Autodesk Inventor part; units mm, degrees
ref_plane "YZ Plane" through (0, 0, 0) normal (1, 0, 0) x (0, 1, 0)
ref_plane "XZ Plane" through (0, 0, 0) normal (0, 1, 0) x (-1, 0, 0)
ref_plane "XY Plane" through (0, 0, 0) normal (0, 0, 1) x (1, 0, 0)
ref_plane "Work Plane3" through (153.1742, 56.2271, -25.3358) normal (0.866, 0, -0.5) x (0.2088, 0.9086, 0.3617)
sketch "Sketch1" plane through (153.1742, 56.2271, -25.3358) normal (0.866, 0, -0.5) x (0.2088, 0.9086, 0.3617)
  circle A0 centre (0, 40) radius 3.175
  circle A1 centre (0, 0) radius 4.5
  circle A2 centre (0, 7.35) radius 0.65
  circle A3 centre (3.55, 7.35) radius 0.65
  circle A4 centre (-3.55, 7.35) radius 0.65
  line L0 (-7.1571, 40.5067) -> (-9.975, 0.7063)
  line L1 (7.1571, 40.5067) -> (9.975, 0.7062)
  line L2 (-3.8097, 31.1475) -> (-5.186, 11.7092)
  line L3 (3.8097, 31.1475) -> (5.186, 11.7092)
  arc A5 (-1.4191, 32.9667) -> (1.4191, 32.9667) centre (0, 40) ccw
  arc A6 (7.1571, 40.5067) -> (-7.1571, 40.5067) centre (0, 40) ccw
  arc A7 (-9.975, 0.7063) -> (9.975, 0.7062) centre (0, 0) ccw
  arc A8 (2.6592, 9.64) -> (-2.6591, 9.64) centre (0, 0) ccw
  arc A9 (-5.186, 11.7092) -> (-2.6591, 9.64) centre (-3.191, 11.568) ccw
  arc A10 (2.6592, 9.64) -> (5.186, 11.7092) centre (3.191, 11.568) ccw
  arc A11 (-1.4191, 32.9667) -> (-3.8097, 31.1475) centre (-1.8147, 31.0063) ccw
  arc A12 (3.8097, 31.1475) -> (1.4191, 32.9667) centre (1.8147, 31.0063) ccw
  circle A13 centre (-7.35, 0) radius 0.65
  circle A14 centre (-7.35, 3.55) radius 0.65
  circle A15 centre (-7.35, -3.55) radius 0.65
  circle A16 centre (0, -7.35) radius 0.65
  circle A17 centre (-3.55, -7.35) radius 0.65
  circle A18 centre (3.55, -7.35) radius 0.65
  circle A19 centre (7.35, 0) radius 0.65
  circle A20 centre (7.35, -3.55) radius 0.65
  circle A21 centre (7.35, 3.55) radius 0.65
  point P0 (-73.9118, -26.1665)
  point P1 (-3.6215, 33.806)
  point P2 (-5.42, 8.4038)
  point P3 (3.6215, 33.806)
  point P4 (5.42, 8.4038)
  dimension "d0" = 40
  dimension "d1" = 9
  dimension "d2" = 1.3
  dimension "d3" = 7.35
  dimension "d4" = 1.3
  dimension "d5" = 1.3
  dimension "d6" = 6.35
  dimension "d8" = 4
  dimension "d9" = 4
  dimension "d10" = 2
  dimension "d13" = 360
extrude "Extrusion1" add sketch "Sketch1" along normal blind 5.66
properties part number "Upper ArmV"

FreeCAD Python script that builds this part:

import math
import FreeCAD as App
import Part
import Sketcher

doc = App.newDocument("Part")
params = doc.addObject("Spreadsheet::Sheet", "Params")
for row, (alias, value) in enumerate([
    ("sketch1_diameter", "9 mm"),
    ("sketch1_radius", "2 mm"),
    ("sketch1_diameter2", "1.3 mm"),
    ("sketch1_diameter3", "6.35 mm"),
    ("sketch1_radius2", "10 mm"),
    ("pad1_length", "5.66 mm"),
], start=1):
    params.set(f"A{row}", alias)
    params.set(f"B{row}", "=" + value)
    params.setAlias(f"B{row}", alias)

body = doc.addObject("PartDesign::Body", "Body")

sketch1 = doc.addObject("Sketcher::SketchObject", "Sketch")
body.addObject(sketch1)
sketch1.Placement = App.Placement(App.Vector(153.1742, 56.2271, -25.3358), App.Rotation(App.Vector(0.208822961, 0.908609863, 0.361691978), App.Vector(0.454304932, -0.417645922, 0.786879224), App.Vector(0.866025404, 0, -0.5), "ZXY"))
sketch1.addGeometry([
    Part.ArcOfCircle(Part.Circle(App.Vector(0, 40, 0), App.Vector(0, 0, 1), 7.2), math.radians(4), math.radians(176)),
    Part.LineSegment(App.Vector(-7.2, 40.5, 0), App.Vector(-10, 0.7, 0)),
    Part.ArcOfCircle(Part.Circle(App.Vector(0, 0, 0), App.Vector(0, 0, 1), 10), math.radians(176), math.radians(364)),
    Part.LineSegment(App.Vector(10, 0.7, 0), App.Vector(7.2, 40.5, 0)),
    Part.Circle(App.Vector(-7.3, -3.5, 0), App.Vector(0, 0, 1), 0.7),
    Part.Circle(App.Vector(-7.3, 0, 0), App.Vector(0, 0, 1), 0.7),
    Part.Circle(App.Vector(-7.3, 3.5, 0), App.Vector(0, 0, 1), 0.7),
    Part.Circle(App.Vector(-3.5, -7.3, 0), App.Vector(0, 0, 1), 0.7),
    Part.Circle(App.Vector(-3.5, 7.3, 0), App.Vector(0, 0, 1), 0.7),
    Part.Circle(App.Vector(0, -7.3, 0), App.Vector(0, 0, 1), 0.7),
    Part.Circle(App.Vector(3.5, -7.3, 0), App.Vector(0, 0, 1), 0.7),
    Part.Circle(App.Vector(0, 0, 0), App.Vector(0, 0, 1), 4.5),
    Part.Circle(App.Vector(7.3, -3.5, 0), App.Vector(0, 0, 1), 0.7),
    Part.Circle(App.Vector(7.3, 0, 0), App.Vector(0, 0, 1), 0.7),
    Part.Circle(App.Vector(7.3, 3.5, 0), App.Vector(0, 0, 1), 0.7),
    Part.Circle(App.Vector(0, 7.3, 0), App.Vector(0, 0, 1), 0.7),
    Part.Circle(App.Vector(3.5, 7.3, 0), App.Vector(0, 0, 1), 0.7),
    Part.LineSegment(App.Vector(-5.2, 11.7, 0), App.Vector(-3.8, 31.1, 0)),
    Part.ArcOfCircle(Part.Circle(App.Vector(-1.8, 31, 0), App.Vector(0, 0, 1), 2), math.radians(79), math.radians(176)),
    Part.ArcOfCircle(Part.Circle(App.Vector(0, 40, 0), App.Vector(0, 0, 1), 7.2), math.radians(-101), math.radians(-79)),
    Part.ArcOfCircle(Part.Circle(App.Vector(1.8, 31, 0), App.Vector(0, 0, 1), 2), math.radians(4), math.radians(101)),
    Part.LineSegment(App.Vector(3.8, 31.1, 0), App.Vector(5.2, 11.7, 0)),
    Part.ArcOfCircle(Part.Circle(App.Vector(3.2, 11.6, 0), App.Vector(0, 0, 1), 2), math.radians(-105), math.radians(4)),
    Part.ArcOfCircle(Part.Circle(App.Vector(0, 0, 0), App.Vector(0, 0, 1), 10), math.radians(75), math.radians(105)),
    Part.ArcOfCircle(Part.Circle(App.Vector(-3.2, 11.6, 0), App.Vector(0, 0, 1), 2), math.radians(176), math.radians(285)),
    Part.Circle(App.Vector(0, 40, 0), App.Vector(0, 0, 1), 3.2),
], False)
sketch1.addConstraint([
    Sketcher.Constraint("Tangent", 0, 2, 1, 1),
    Sketcher.Constraint("Tangent", 1, 2, 2, 1),
    Sketcher.Constraint("Tangent", 2, 2, 3, 1),
    Sketcher.Constraint("Tangent", 3, 2, 0, 1),
    Sketcher.Constraint("Tangent", 17, 2, 18, 2),
    Sketcher.Constraint("Tangent", 18, 1, 19, 1),
    Sketcher.Constraint("Tangent", 19, 2, 20, 2),
    Sketcher.Constraint("Tangent", 20, 1, 21, 1),
    Sketcher.Constraint("Tangent", 21, 2, 22, 2),
    Sketcher.Constraint("Tangent", 22, 1, 23, 1),
    Sketcher.Constraint("Tangent", 23, 2, 24, 2),
    Sketcher.Constraint("Tangent", 24, 1, 17, 1),
    Sketcher.Constraint("Coincident", 2, 3, -1, 1),
    Sketcher.Constraint("Coincident", 11, 3, -1, 1),
    Sketcher.Constraint("Coincident", 23, 3, -1, 1),
    Sketcher.Constraint("Coincident", 19, 3, 0, 3),
    Sketcher.Constraint("Coincident", 25, 3, 0, 3),
    Sketcher.Constraint("Equal", 4, 5),
    Sketcher.Constraint("Equal", 5, 6),
    Sketcher.Constraint("Equal", 6, 7),
    Sketcher.Constraint("Equal", 7, 8),
    Sketcher.Constraint("Equal", 8, 9),
    Sketcher.Constraint("Equal", 9, 10),
    Sketcher.Constraint("Equal", 10, 12),
    Sketcher.Constraint("Equal", 12, 13),
    Sketcher.Constraint("Equal", 13, 14),
    Sketcher.Constraint("Equal", 14, 15),
    Sketcher.Constraint("Equal", 15, 16),
    Sketcher.Constraint("Equal", 0, 19),
    Sketcher.Constraint("Equal", 18, 20),
    Sketcher.Constraint("Equal", 20, 22),
    Sketcher.Constraint("Equal", 2, 23),
    Sketcher.Constraint("Equal", 22, 24),
    Sketcher.Constraint("Symmetric", 8, 3, 10, 3, -1, 1),
    Sketcher.Constraint("Symmetric", 6, 3, 12, 3, -1, 1),
    Sketcher.Constraint("Symmetric", 5, 3, 13, 3, -1, 1),
    Sketcher.Constraint("Symmetric", 4, 3, 14, 3, -1, 1),
    Sketcher.Constraint("Symmetric", 9, 3, 15, 3, -1, 1),
    Sketcher.Constraint("Symmetric", 7, 3, 16, 3, -1, 1),
    Sketcher.Constraint("Symmetric", 7, 3, 10, 3, -2),
    Sketcher.Constraint("Symmetric", 4, 3, 12, 3, -2),
    Sketcher.Constraint("Symmetric", 18, 3, 20, 3, -2),
    Sketcher.Constraint("PointOnObject", 5, 3, -1),
    Sketcher.Constraint("PointOnObject", 9, 3, -2),
    Sketcher.Constraint("Parallel", 1, 17),
    Sketcher.Constraint("Parallel", 3, 21),
    Sketcher.Constraint("Horizontal", 7, 3, 9, 3),
    Sketcher.Constraint("Vertical", 4, 3, 5, 3),
    Sketcher.Constraint("Diameter", 11, 9.0),
    Sketcher.Constraint("Radius", 18, 2.0),
    Sketcher.Constraint("Diameter", 4, 1.3),
    Sketcher.Constraint("Diameter", 25, 6.35),
    Sketcher.Constraint("DistanceY", -1, 1, 0, 3, 40.0),
    Sketcher.Constraint("Radius", 2, 10.0),
    Sketcher.Constraint("DistanceX", 4, 3, -1, 1, 7.35),
    Sketcher.Constraint("DistanceY", 7, 3, -1, 1, 7.35),
    Sketcher.Constraint("Radius", 0, 7.175),
    Sketcher.Constraint("DistanceY", 4, 3, 6, 3, 7.1),
    Sketcher.Constraint("DistanceX", 4, 3, 7, 3, 3.8),
    Sketcher.Constraint("DistanceY", -1, 1, 22, 1, 9.64),
])
sketch1.setExpression("Constraints[48]", "Params.sketch1_diameter")
sketch1.setExpression("Constraints[49]", "Params.sketch1_radius")
sketch1.setExpression("Constraints[50]", "Params.sketch1_diameter2")
sketch1.setExpression("Constraints[51]", "Params.sketch1_diameter3")
sketch1.setExpression("Constraints[53]", "Params.sketch1_radius2")
pad1 = doc.addObject("PartDesign::Pad", "Pad")
body.addObject(pad1)
pad1.Profile = sketch1
pad1.setExpression("Length", "Params.pad1_length")

doc.recompute()
